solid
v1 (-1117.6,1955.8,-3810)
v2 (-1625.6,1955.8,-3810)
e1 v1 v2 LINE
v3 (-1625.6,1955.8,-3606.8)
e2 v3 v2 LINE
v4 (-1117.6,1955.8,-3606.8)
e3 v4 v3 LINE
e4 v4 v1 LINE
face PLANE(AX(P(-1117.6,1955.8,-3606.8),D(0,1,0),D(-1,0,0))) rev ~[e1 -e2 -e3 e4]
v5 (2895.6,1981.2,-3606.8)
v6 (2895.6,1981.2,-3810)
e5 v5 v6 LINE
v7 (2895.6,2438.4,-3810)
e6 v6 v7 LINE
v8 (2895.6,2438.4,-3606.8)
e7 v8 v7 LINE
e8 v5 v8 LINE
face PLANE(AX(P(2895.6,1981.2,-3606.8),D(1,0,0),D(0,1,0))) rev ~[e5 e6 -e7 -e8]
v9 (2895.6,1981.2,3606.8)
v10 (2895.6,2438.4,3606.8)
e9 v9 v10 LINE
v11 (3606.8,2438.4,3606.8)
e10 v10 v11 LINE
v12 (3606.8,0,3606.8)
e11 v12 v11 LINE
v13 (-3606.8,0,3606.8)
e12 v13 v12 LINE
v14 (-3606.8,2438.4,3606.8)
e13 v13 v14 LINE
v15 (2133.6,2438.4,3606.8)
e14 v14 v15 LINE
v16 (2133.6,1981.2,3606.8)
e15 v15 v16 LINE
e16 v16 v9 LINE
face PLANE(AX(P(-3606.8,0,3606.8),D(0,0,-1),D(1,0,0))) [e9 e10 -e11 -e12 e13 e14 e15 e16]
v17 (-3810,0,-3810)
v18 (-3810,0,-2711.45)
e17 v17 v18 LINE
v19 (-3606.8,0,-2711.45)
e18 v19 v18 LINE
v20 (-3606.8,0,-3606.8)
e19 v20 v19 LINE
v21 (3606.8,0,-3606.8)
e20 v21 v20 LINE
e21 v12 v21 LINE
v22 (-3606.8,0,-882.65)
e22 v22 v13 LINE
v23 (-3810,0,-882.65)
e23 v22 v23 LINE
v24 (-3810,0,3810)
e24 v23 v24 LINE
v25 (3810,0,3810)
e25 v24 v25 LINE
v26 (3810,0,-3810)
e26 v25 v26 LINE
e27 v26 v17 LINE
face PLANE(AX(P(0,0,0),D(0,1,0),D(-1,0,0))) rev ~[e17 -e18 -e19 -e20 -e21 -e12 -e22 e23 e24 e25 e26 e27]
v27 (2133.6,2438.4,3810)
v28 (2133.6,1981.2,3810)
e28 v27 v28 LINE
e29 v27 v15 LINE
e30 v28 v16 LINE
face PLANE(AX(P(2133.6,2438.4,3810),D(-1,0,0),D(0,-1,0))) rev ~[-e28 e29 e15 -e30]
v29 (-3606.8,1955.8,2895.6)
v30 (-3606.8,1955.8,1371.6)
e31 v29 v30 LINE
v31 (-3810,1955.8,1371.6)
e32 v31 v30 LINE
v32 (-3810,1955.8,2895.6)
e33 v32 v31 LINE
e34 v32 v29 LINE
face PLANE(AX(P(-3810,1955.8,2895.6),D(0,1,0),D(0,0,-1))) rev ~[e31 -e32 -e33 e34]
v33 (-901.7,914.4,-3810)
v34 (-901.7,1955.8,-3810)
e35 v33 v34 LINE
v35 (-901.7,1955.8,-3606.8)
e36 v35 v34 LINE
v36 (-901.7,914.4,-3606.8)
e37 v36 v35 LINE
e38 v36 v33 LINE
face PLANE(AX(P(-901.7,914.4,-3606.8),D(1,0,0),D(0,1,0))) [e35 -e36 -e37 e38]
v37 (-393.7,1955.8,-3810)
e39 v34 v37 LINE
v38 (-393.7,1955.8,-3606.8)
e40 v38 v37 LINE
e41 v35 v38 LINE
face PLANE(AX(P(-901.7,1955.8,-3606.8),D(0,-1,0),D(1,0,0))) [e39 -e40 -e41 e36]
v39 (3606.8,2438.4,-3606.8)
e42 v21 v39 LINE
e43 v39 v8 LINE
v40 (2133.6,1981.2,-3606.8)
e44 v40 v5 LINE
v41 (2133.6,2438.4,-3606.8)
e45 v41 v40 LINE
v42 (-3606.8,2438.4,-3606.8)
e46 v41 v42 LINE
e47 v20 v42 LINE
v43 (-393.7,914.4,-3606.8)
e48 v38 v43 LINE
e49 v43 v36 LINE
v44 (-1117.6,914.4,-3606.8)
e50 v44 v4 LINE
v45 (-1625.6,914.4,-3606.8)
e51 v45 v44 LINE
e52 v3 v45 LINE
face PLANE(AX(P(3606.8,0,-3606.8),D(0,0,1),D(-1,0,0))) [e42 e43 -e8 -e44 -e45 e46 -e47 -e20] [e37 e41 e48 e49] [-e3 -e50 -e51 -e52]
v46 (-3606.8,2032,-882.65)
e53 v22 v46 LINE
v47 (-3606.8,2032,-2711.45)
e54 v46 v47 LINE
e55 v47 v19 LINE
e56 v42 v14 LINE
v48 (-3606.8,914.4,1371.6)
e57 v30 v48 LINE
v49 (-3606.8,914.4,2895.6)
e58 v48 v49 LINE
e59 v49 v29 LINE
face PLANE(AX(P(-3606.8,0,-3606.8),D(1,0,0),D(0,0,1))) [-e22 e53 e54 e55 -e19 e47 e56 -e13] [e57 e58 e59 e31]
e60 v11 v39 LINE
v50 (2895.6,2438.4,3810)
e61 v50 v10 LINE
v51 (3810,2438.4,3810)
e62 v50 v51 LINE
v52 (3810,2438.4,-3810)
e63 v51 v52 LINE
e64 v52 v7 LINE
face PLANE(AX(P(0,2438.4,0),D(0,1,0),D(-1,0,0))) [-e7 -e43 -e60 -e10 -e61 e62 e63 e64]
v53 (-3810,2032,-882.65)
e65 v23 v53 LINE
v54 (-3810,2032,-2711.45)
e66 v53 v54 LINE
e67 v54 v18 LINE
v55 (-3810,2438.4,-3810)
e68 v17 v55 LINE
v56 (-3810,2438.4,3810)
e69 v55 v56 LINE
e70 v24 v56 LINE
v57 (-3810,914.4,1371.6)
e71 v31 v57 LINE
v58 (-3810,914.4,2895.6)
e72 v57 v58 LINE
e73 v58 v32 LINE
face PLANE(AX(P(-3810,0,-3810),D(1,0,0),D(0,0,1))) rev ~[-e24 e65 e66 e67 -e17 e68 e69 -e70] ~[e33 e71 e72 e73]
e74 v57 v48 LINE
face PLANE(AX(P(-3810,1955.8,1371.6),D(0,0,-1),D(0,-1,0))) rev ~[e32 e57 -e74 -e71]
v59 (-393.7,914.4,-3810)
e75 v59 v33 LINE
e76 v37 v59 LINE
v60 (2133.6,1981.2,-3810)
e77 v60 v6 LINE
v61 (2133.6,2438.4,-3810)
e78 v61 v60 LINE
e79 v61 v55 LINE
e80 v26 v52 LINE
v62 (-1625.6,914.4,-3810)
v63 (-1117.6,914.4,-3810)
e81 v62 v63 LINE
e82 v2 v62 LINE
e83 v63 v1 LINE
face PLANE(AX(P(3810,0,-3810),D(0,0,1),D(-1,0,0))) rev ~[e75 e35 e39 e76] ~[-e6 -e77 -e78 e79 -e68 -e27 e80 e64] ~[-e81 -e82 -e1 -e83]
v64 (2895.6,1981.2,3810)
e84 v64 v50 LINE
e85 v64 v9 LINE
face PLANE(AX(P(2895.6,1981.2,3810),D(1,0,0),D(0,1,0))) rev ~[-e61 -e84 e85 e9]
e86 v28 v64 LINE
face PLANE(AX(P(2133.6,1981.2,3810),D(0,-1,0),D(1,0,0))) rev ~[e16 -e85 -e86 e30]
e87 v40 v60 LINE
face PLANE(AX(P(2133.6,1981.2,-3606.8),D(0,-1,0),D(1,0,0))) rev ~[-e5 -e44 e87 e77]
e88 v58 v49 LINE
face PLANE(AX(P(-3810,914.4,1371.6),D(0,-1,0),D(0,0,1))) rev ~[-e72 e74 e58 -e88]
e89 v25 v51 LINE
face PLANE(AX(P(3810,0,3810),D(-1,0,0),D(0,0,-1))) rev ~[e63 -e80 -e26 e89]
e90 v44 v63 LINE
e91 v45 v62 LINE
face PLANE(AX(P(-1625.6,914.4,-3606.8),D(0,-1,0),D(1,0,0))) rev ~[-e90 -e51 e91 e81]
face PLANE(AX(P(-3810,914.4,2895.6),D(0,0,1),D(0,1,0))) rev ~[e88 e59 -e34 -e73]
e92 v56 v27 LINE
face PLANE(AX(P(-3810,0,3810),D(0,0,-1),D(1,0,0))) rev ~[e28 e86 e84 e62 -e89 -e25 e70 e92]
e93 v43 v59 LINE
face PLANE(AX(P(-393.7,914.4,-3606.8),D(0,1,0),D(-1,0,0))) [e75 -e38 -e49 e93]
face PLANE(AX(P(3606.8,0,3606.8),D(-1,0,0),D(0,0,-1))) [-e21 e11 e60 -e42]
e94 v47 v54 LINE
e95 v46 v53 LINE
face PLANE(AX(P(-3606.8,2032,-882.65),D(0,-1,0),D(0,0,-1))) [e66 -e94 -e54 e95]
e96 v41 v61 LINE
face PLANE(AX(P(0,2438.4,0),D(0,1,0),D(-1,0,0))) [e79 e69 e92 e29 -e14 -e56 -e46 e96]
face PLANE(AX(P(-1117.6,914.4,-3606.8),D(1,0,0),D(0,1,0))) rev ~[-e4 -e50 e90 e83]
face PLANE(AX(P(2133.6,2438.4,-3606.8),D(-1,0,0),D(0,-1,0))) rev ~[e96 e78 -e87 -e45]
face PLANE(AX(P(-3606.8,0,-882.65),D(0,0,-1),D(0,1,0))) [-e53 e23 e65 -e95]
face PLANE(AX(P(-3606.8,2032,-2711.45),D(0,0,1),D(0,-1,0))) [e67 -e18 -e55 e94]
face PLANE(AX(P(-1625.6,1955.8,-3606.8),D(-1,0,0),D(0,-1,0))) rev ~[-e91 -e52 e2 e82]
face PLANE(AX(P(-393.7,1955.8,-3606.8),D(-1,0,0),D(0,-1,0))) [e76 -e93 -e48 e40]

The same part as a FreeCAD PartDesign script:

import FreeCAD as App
import Part
import Sketcher
Q = App.Units.Quantity


def add_polygon(sketch, points):
    """Adds a closed chain of lines whose ends are joined by coincident constraints."""
    first, n = sketch.GeometryCount, len(points)
    for a, b in zip(points, points[1:] + points[:1]):
        sketch.addGeometry(Part.LineSegment(App.Vector(*a, 0), App.Vector(*b, 0)), False)
    for i in range(n):
        sketch.addConstraint(Sketcher.Constraint("Coincident", first + i, 2, first + (i + 1) % n, 1))

doc = App.newDocument("Part")
params = doc.addObject("Spreadsheet::Sheet", "Params")
for row, (alias, value) in enumerate([
    ("sketch1_width", "300 in"),
    ("sketch1_width2", "284 in"),
    ("pad1_length", "96 in"),
    ("sketch2_width", "30 in"),
    ("sketch2_height", "18 in"),
    ("pocket1_length", "8 in"),
    ("sketch3_width", "20 in"),
    ("sketch3_height", "41 in"),
    ("pocket2_length", "8 in"),
    ("sketch4_width", "30 in"),
    ("sketch4_height", "18 in"),
    ("pocket3_length", "8 in"),
    ("sketch5_width", "20 in"),
    ("sketch5_height", "41 in"),
    ("pocket4_length", "8 in"),
    ("sketch6_width", "80 in"),
    ("sketch6_height", "72 in"),
    ("pocket5_length", "8 in"),
    ("sketch7_width", "41 in"),
    ("sketch7_height", "60 in"),
    ("pocket6_length", "8 in"),
], start=1):
    params.set(f"A{row}", alias)
    params.set(f"B{row}", "=" + value)
    params.setAlias(f"B{row}", alias)

body = doc.addObject("PartDesign::Body", "Body")

sketch1 = body.newObject("Sketcher::SketchObject", "Sketch")
sketch1.AttachmentSupport = (doc.getObject("XZ_Plane"), [""])
sketch1.MapMode = "FlatFace"
add_polygon(sketch1, [(-3810, 3810), (3810, 3810), (3810, -3810), (-3810, -3810)])
add_polygon(sketch1, [(3606.8, 3606.8), (-3606.8, 3606.8), (-3606.8, -3606.8), (3606.8, -3606.8)])
sketch1.addConstraint([
    Sketcher.Constraint("Horizontal", 0),
    Sketcher.Constraint("Vertical", 1),
    Sketcher.Constraint("Horizontal", 2),
    Sketcher.Constraint("Vertical", 3),
    Sketcher.Constraint("Horizontal", 4),
    Sketcher.Constraint("Vertical", 5),
    Sketcher.Constraint("Horizontal", 6),
    Sketcher.Constraint("Vertical", 7),
    Sketcher.Constraint("Symmetric", 0, 2, 2, 2, -1, 1),
    Sketcher.Constraint("Symmetric", 4, 2, 6, 2, -1, 1),
    Sketcher.Constraint("Equal", 2, 1),
    Sketcher.Constraint("Equal", 6, 5),
    Sketcher.Constraint("DistanceX", 0, 1, 0, 2, Q("300 in")),
    Sketcher.Constraint("DistanceX", 4, 2, 4, 1, Q("284 in")),
])
sketch1.setExpression("Constraints[20]", "Params.sketch1_width")
sketch1.setExpression("Constraints[21]", "Params.sketch1_width2")
pad1 = body.newObject("PartDesign::Pad", "Pad")
pad1.Profile = sketch1
pad1.setExpression("Length", "Params.pad1_length")
pad1.Reversed = True

sketch2 = body.newObject("Sketcher::SketchObject", "Sketch001")
sketch2.AttachmentSupport = (doc.getObject("XY_Plane"), [""])
sketch2.MapMode = "FlatFace"
sketch2.AttachmentOffset = App.Placement(App.Vector(0, 0, 150 * 25.4), App.Rotation())
add_polygon(sketch2, [(2895.6, 1981.2), (2895.6, 2438.4), (2133.6, 2438.4), (2133.6, 1981.2)])
sketch2.addConstraint([
    Sketcher.Constraint("Vertical", 0),
    Sketcher.Constraint("Horizontal", 1),
    Sketcher.Constraint("Vertical", 2),
    Sketcher.Constraint("Horizontal", 3),
    Sketcher.Constraint("DistanceX", 1, 2, 1, 1, Q("30 in")),
    Sketcher.Constraint("DistanceY", 0, 1, 0, 2, Q("18 in")),
    Sketcher.Constraint("DistanceX", -1, 1, 0, 2, Q("114 in")),
    Sketcher.Constraint("DistanceY", -1, 1, 0, 2, Q("96 in")),
])
sketch2.setExpression("Constraints[8]", "Params.sketch2_width")
sketch2.setExpression("Constraints[9]", "Params.sketch2_height")
pocket1 = body.newObject("PartDesign::Pocket", "Pocket")
pocket1.Profile = sketch2
pocket1.setExpression("Length", "Params.pocket1_length")

sketch3 = body.newObject("Sketcher::SketchObject", "Sketch002")
sketch3.AttachmentSupport = (doc.getObject("XY_Plane"), [""])
sketch3.MapMode = "FlatFace"
sketch3.AttachmentOffset = App.Placement(App.Vector(0, 0, -142 * 25.4), App.Rotation())
add_polygon(sketch3, [(-393.7, 1955.8), (-901.7, 1955.8), (-901.7, 914.4), (-393.7, 914.4)])
sketch3.addConstraint([
    Sketcher.Constraint("Horizontal", 0),
    Sketcher.Constraint("Vertical", 1),
    Sketcher.Constraint("Horizontal", 2),
    Sketcher.Constraint("Vertical", 3),
    Sketcher.Constraint("DistanceX", 0, 2, 0, 1, Q("20 in")),
    Sketcher.Constraint("DistanceY", 1, 2, 1, 1, Q("41 in")),
    Sketcher.Constraint("DistanceY", -1, 1, 1, 2, Q("36 in")),
    Sketcher.Constraint("DistanceX", 0, 2, -1, 1, Q("35.5 in")),
])
sketch3.setExpression("Constraints[8]", "Params.sketch3_width")
sketch3.setExpression("Constraints[9]", "Params.sketch3_height")
pocket2 = body.newObject("PartDesign::Pocket", "Pocket001")
pocket2.Profile = sketch3
pocket2.setExpression("Length", "Params.pocket2_length")

sketch4 = body.newObject("Sketcher::SketchObject", "Sketch003")
sketch4.AttachmentSupport = (doc.getObject("XY_Plane"), [""])
sketch4.MapMode = "FlatFace"
sketch4.AttachmentOffset = App.Placement(App.Vector(0, 0, -142 * 25.4), App.Rotation())
add_polygon(sketch4, [(2895.6, 2438.4), (2133.6, 2438.4), (2133.6, 1981.2), (2895.6, 1981.2)])
sketch4.addConstraint([
    Sketcher.Constraint("Horizontal", 0),
    Sketcher.Constraint("Vertical", 1),
    Sketcher.Constraint("Horizontal", 2),
    Sketcher.Constraint("Vertical", 3),
    Sketcher.Constraint("DistanceX", 0, 2, 0, 1, Q("30 in")),
    Sketcher.Constraint("DistanceY", 1, 2, 1, 1, Q("18 in")),
    Sketcher.Constraint("DistanceX", -1, 1, 0, 2, Q("84 in")),
    Sketcher.Constraint("DistanceY", -1, 1, 0, 2, Q("96 in")),
])
sketch4.setExpression("Constraints[8]", "Params.sketch4_width")
sketch4.setExpression("Constraints[9]", "Params.sketch4_height")
pocket3 = body.newObject("PartDesign::Pocket", "Pocket002")
pocket3.Profile = sketch4
pocket3.setExpression("Length", "Params.pocket3_length")

sketch5 = body.newObject("Sketcher::SketchObject", "Sketch004")
sketch5.AttachmentSupport = (doc.getObject("XY_Plane"), [""])
sketch5.MapMode = "FlatFace"
sketch5.AttachmentOffset = App.Placement(App.Vector(0, 0, -142 * 25.4), App.Rotation())
add_polygon(sketch5, [(-1117.6, 914.4), (-1117.6, 1955.8), (-1625.6, 1955.8), (-1625.6, 914.4)])
sketch5.addConstraint([
    Sketcher.Constraint("Vertical", 0),
    Sketcher.Constraint("Horizontal", 1),
    Sketcher.Constraint("Vertical", 2),
    Sketcher.Constraint("Horizontal", 3),
    Sketcher.Constraint("DistanceX", 1, 2, 1, 1, Q("20 in")),
    Sketcher.Constraint("DistanceY", 0, 1, 0, 2, Q("41 in")),
    Sketcher.Constraint("DistanceY", -1, 1, 2, 2, Q("36 in")),
    Sketcher.Constraint("DistanceX", 0, 2, -1, 1, Q("44 in")),
])
sketch5.setExpression("Constraints[8]", "Params.sketch5_width")
sketch5.setExpression("Constraints[9]", "Params.sketch5_height")
pocket4 = body.newObject("PartDesign::Pocket", "Pocket003")
pocket4.Profile = sketch5
pocket4.setExpression("Length", "Params.pocket4_length")

sketch6 = body.newObject("Sketcher::SketchObject", "Sketch005")
sketch6.AttachmentSupport = (doc.getObject("YZ_Plane"), [""])
sketch6.MapMode = "FlatFace"
sketch6.AttachmentOffset = App.Placement(App.Vector(0, 0, -142 * 25.4), App.Rotation())
add_polygon(sketch6, [(2032, -882.65), (0, -882.65), (0, -2711.45), (2032, -2711.45)])
sketch6.addConstraint([
    Sketcher.Constraint("Horizontal", 0),
    Sketcher.Constraint("Vertical", 1),
    Sketcher.Constraint("Horizontal", 2),
    Sketcher.Constraint("Vertical", 3),
    Sketcher.Constraint("PointOnObject", 0, 2, -2),
    Sketcher.Constraint("DistanceX", 0, 2, 0, 1, Q("80 in")),
    Sketcher.Constraint("DistanceY", 1, 2, 1, 1, Q("72 in")),
    Sketcher.Constraint("DistanceY", 0, 2, -1, 1, Q("34.75 in")),
])
sketch6.setExpression("Constraints[9]", "Params.sketch6_width")
sketch6.setExpression("Constraints[10]", "Params.sketch6_height")
pocket5 = body.newObject("PartDesign::Pocket", "Pocket004")
pocket5.Profile = sketch6
pocket5.setExpression("Length", "Params.pocket5_length")

sketch7 = body.newObject("Sketcher::SketchObject", "Sketch006")
sketch7.AttachmentSupport = (doc.getObject("YZ_Plane"), [""])
sketch7.MapMode = "FlatFace"
sketch7.AttachmentOffset = App.Placement(App.Vector(0, 0, -150 * 25.4), App.Rotation())
add_polygon(sketch7, [(914.4, 2895.6), (1955.8, 2895.6), (1955.8, 1371.6), (914.4, 1371.6)])
sketch7.addConstraint([
    Sketcher.Constraint("Horizontal", 0),
    Sketcher.Constraint("Vertical", 1),
    Sketcher.Constraint("Horizontal", 2),
    Sketcher.Constraint("Vertical", 3),
    Sketcher.Constraint("DistanceX", 0, 1, 0, 2, Q("41 in")),
    Sketcher.Constraint("DistanceY", 1, 2, 1, 1, Q("60 in")),
    Sketcher.Constraint("DistanceX", -1, 1, 2, 2, Q("36 in")),
    Sketcher.Constraint("DistanceY", -1, 1, 0, 2, Q("114 in")),
])
sketch7.setExpression("Constraints[8]", "Params.sketch7_width")
sketch7.setExpression("Constraints[9]", "Params.sketch7_height")
pocket6 = body.newObject("PartDesign::Pocket", "Pocket005")
pocket6.Profile = sketch7
pocket6.setExpression("Length", "Params.pocket6_length")
pocket6.Reversed = True

doc.recompute()
